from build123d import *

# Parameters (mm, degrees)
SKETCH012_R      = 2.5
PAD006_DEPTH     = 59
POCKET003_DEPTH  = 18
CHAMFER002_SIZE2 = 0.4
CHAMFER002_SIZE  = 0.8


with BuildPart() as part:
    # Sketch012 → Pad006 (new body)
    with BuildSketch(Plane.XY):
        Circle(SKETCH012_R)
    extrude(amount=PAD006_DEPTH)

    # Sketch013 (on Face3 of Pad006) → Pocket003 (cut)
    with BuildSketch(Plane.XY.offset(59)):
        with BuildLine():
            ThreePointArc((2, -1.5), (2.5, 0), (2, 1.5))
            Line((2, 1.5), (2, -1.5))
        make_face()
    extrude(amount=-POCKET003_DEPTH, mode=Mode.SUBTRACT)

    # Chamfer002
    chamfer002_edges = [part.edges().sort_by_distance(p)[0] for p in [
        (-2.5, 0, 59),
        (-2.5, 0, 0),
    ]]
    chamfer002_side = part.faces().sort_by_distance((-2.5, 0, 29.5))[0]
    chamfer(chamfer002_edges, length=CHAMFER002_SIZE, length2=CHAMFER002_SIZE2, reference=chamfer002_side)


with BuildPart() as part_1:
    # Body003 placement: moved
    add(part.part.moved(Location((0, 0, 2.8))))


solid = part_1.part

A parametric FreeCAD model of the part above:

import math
import FreeCAD as App
import Part
import Sketcher

V = App.Vector


def edges_at(feature, points):
    """Names of the edges that pass closest to the given points."""
    edges = feature.Shape.Edges
    near = lambda p: min(range(len(edges)), key=lambda i: edges[i].distToShape(Part.Vertex(*p))[0])
    return sorted({f"Edge{near(p) + 1}" for p in points})

doc = App.newDocument("Part")
params = doc.addObject("Spreadsheet::Sheet", "Params")
for row, (alias, value) in enumerate([
    ("sketch1_diameter", "5 mm"),
    ("pad1_length", "59 mm"),
    ("sketch2_radius", "2.5 mm"),
    ("sketch2_height", "3 mm"),
    ("pocket1_length", "18 mm"),
    ("chamfer_size", "0.8 mm"),
    ("chamfer_size2", "0.4 mm"),
], start=1):
    params.set(f"A{row}", alias)
    params.set(f"B{row}", "=" + value)
    params.setAlias(f"B{row}", alias)

body = doc.addObject("PartDesign::Body", "Body")

# Sketch on XY plane
sketch1 = body.newObject("Sketcher::SketchObject", "Sketch")
sketch1.AttachmentSupport = (doc.getObject("XY_Plane"), [""])
sketch1.MapMode = "FlatFace"
sketch1.addGeometry(Part.Circle(V(0, 0, 0), V(0, 0, 1), 2.5), False)
sketch1.addConstraint(Sketcher.Constraint("Coincident", 0, 3, -1, 1))
sketch1.addConstraint(Sketcher.Constraint("Diameter", 0, 5.0))
sketch1.setExpression("Constraints[1]", "Params.sketch1_diameter")
pad1 = body.newObject("PartDesign::Pad", "Pad")
pad1.Profile = sketch1
pad1.setExpression("Length", "Params.pad1_length")

# Sketch on XY plane
sketch2 = body.newObject("Sketcher::SketchObject", "Sketch001")
sketch2.AttachmentSupport = (doc.getObject("XY_Plane"), [""])
sketch2.MapMode = "FlatFace"
sketch2.AttachmentOffset = App.Placement(V(0, 0, 59), App.Rotation())
sketch2.addGeometry(Part.ArcOfCircle(Part.Circle(V(0, 0, 0), V(0, 0, 1), 2.5), math.radians(-37), math.radians(37)), False)
sketch2.addGeometry(Part.LineSegment(V(2, 1.5, 0), V(2, -1.5, 0)), False)
sketch2.addConstraint(Sketcher.Constraint("Coincident", 0, 1, 1, 2))
sketch2.addConstraint(Sketcher.Constraint("Coincident", 1, 1, 0, 2))
sketch2.addConstraint(Sketcher.Constraint("Vertical", 1))
sketch2.addConstraint(Sketcher.Constraint("Coincident", 0, 3, -1, 1))
sketch2.addConstraint(Sketcher.Constraint("Radius", 0, 2.5))
sketch2.addConstraint(Sketcher.Constraint("DistanceY", 1, 2, 1, 1, 3.0))
sketch2.setExpression("Constraints[4]", "Params.sketch2_radius")
sketch2.setExpression("Constraints[5]", "Params.sketch2_height")
pocket1 = body.newObject("PartDesign::Pocket", "Pocket")
pocket1.Profile = sketch2
pocket1.setExpression("Length", "Params.pocket1_length")
doc.recompute()

chamfer = body.newObject("PartDesign::Chamfer", "Chamfer")
chamfer.Base = (pocket1, edges_at(pocket1, [(-2.5, 0, 59), (-2.5, 0, 0)]))
chamfer.ChamferType = "Two distances"
chamfer.setExpression("Size", "Params.chamfer_size")
chamfer.setExpression("Size2", "Params.chamfer_size2")
body2 = doc.addObject("PartDesign::Body", "Body001")
doc.recompute()

body.Placement = App.Placement(V(0, 0, 2.8), App.Rotation(V(0, 0, 1), 0))
boolean = body2.newObject("PartDesign::Boolean", "Boolean")
boolean.Type = "Fuse"
boolean.addObjects([body])

doc.recompute()
